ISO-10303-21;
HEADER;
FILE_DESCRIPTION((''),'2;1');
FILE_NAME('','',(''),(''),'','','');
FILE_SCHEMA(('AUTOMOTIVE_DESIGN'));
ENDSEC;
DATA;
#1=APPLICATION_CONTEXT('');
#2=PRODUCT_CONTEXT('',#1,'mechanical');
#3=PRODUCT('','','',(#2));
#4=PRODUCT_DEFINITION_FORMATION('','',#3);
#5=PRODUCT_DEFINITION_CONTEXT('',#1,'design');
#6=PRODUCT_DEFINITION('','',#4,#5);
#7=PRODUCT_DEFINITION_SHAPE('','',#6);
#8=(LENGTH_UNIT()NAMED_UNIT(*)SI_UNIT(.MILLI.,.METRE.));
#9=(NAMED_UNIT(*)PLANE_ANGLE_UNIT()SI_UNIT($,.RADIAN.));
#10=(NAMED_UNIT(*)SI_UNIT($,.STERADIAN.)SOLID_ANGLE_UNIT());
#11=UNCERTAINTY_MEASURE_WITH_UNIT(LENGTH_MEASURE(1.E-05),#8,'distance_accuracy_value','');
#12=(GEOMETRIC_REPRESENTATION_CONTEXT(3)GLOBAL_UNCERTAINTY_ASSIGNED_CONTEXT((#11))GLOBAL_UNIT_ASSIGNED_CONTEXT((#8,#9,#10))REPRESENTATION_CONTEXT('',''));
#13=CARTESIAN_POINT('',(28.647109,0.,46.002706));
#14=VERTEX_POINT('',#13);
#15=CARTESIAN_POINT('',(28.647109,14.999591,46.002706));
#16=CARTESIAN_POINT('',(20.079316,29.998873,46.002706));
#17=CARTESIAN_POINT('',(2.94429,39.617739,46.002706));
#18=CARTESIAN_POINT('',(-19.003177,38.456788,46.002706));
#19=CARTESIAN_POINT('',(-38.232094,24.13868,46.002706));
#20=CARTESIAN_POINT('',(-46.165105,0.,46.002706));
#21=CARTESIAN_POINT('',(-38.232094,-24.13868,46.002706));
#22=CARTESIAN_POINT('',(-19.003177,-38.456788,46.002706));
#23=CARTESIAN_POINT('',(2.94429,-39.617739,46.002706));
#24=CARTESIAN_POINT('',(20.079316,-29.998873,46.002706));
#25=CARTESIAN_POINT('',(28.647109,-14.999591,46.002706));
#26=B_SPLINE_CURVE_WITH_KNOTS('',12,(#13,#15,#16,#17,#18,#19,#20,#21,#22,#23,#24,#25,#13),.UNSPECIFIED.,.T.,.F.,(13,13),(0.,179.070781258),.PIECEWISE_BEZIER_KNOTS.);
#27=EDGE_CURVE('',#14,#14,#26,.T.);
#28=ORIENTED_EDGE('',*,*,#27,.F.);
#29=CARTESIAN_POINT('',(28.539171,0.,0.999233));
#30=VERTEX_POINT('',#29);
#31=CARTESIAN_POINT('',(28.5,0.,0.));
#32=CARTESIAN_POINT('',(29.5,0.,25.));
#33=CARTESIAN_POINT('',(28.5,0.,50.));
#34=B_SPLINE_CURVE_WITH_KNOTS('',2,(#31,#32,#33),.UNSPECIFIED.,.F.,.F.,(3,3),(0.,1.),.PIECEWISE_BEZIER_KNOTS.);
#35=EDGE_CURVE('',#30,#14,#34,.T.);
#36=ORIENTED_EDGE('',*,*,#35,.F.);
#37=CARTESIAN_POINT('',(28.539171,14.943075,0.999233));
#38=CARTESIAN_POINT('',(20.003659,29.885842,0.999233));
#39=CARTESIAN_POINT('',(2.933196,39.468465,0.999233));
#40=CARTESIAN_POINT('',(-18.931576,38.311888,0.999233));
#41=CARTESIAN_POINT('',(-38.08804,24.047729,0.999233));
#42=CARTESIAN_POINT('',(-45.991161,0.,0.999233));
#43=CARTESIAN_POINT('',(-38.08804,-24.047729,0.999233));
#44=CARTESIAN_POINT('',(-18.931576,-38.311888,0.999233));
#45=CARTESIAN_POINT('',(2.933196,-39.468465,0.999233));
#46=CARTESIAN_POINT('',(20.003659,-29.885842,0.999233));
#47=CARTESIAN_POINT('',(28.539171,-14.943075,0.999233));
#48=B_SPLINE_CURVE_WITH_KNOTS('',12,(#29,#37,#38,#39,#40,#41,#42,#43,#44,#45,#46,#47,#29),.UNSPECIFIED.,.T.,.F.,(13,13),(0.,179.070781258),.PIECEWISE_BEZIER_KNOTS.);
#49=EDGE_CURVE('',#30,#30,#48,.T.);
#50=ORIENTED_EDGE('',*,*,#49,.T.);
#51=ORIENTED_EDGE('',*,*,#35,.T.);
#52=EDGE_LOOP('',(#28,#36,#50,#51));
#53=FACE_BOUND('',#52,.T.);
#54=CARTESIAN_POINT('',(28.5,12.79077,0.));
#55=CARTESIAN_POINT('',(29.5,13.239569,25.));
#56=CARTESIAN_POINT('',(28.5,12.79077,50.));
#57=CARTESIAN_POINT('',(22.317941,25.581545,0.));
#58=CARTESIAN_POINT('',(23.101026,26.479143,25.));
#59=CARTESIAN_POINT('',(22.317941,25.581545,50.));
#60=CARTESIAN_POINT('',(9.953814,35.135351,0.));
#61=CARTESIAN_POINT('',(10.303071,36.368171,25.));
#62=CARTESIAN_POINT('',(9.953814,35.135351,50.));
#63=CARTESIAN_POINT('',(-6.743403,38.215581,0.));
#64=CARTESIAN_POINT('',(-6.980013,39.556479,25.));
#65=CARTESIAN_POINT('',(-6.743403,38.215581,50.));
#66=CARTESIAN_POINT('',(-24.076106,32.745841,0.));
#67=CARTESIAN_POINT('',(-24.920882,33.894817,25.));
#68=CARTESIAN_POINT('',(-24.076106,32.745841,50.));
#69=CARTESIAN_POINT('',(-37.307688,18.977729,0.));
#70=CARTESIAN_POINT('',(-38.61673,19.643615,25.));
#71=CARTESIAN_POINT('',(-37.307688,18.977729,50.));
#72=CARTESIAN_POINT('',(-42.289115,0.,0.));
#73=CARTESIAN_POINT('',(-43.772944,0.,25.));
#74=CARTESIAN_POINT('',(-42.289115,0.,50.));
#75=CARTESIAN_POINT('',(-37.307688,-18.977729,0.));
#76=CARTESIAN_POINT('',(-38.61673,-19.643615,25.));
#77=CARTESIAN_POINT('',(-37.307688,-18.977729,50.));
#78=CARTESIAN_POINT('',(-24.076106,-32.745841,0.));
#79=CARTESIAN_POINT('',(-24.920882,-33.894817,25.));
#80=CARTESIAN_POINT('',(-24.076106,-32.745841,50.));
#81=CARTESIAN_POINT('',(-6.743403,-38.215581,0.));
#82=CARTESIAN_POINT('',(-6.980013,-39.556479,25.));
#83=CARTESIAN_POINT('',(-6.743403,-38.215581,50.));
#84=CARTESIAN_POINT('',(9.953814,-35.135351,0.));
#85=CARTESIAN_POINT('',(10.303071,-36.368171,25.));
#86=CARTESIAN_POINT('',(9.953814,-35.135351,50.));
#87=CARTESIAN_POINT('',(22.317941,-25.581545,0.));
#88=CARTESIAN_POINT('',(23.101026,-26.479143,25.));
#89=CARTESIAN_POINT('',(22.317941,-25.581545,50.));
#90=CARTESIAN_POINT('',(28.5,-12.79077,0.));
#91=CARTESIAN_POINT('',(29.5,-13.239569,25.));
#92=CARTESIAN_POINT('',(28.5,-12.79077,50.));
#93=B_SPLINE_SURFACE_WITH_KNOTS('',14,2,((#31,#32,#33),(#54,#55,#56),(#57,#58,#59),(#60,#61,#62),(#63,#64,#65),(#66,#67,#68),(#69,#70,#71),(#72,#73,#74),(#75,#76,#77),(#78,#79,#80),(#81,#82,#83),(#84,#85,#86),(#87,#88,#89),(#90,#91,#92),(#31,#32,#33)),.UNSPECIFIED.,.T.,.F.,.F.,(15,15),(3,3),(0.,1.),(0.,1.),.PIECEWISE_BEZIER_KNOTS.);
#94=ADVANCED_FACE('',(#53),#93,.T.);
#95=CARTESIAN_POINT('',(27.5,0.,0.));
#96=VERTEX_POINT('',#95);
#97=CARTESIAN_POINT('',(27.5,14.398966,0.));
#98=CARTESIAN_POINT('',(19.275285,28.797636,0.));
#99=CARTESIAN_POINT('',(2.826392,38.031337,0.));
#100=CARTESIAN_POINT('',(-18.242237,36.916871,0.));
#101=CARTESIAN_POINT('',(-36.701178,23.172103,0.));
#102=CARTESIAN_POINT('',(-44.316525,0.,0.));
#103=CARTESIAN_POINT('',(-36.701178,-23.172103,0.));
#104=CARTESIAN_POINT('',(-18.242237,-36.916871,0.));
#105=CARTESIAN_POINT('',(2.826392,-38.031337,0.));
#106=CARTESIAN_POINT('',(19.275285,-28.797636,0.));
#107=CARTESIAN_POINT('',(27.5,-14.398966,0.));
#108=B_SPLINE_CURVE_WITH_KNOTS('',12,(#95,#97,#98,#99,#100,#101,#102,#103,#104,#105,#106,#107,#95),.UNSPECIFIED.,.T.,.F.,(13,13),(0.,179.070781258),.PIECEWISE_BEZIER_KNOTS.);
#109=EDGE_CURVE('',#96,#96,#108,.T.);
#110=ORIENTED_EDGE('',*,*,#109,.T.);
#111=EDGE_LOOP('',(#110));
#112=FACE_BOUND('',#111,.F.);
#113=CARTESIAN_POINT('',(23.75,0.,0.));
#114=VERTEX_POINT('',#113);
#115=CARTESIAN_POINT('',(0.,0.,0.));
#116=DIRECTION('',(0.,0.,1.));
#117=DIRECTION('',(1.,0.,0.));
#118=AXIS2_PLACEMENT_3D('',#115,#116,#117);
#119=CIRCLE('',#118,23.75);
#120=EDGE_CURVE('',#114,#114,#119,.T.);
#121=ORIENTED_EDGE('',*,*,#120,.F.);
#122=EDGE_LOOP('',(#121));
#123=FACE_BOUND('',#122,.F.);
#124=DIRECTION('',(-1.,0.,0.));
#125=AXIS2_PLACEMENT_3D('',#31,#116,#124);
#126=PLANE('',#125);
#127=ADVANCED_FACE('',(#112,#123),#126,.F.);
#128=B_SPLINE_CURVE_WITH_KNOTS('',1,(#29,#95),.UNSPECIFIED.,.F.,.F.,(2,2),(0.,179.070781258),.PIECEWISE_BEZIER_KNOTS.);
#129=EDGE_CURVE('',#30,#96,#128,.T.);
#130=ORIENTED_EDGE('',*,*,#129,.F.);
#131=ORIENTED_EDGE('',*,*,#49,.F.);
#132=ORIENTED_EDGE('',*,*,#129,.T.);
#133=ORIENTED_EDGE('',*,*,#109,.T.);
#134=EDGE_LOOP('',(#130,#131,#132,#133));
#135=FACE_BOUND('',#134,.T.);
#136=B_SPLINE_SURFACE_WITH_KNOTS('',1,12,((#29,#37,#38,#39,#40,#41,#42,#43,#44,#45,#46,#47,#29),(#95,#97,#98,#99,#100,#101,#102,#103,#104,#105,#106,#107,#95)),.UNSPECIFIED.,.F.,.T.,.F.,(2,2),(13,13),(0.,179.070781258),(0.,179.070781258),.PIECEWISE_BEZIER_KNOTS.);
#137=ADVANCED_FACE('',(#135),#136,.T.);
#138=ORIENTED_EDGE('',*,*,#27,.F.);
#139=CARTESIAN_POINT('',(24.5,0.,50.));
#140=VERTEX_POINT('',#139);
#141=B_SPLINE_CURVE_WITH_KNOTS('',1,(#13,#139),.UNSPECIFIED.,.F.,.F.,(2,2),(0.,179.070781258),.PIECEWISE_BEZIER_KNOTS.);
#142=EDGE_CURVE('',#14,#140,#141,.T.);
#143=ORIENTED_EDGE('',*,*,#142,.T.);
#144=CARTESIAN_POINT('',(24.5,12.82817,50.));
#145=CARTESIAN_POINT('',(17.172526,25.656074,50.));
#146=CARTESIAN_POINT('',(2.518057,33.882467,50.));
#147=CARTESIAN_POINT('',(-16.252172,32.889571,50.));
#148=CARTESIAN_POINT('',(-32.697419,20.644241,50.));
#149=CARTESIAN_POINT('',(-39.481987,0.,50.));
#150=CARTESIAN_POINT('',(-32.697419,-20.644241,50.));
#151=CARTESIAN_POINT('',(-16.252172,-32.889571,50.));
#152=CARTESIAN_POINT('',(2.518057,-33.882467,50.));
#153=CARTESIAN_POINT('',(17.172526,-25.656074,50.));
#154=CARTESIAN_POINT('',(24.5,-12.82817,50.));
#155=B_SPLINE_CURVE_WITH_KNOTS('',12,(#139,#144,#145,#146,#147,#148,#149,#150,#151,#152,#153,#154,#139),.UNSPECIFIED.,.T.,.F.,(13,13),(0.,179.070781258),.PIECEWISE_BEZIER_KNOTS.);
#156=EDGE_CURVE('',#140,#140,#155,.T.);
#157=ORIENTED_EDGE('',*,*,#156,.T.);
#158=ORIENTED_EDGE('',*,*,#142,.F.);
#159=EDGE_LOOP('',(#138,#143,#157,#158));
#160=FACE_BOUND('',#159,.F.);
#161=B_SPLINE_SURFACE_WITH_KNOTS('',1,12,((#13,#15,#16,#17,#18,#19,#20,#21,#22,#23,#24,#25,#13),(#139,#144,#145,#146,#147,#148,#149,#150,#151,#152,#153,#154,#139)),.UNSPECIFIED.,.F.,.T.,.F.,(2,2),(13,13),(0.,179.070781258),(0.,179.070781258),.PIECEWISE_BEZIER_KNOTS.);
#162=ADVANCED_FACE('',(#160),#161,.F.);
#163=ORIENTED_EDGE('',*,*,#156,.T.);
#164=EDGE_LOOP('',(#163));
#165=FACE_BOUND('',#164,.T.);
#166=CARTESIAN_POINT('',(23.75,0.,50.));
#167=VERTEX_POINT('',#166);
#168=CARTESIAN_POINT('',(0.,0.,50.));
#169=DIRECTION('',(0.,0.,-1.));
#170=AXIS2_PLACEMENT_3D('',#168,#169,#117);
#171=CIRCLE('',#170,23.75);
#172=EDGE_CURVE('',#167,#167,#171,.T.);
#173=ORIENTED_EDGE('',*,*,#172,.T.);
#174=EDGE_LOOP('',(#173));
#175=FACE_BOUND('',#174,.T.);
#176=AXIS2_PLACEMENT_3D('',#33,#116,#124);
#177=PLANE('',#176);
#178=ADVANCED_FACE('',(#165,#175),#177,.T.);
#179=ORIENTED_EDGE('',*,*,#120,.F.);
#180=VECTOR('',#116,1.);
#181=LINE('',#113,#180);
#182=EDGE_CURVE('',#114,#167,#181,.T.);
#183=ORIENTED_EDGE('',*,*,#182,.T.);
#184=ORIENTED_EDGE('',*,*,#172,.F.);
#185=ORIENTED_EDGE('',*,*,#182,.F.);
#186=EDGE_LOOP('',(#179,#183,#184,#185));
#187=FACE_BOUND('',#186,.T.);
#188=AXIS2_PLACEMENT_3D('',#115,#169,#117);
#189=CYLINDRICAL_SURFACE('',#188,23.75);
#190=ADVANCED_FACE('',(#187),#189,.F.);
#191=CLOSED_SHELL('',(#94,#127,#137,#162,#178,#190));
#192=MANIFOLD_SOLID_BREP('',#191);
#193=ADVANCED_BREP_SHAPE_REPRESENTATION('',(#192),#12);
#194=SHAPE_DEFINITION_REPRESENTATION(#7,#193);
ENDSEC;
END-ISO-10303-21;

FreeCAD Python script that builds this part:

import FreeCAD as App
import Part
import Sketcher

V = App.Vector


def edges_at(feature, points):
    """Names of the edges that pass closest to the given points."""
    edges = feature.Shape.Edges
    near = lambda p: min(range(len(edges)), key=lambda i: edges[i].distToShape(Part.Vertex(*p))[0])
    return sorted({f"Edge{near(p) + 1}" for p in points})

doc = App.newDocument("Part")
body = doc.addObject("PartDesign::Body", "Body")

# Sketch on XY plane
sketch1 = doc.addObject("Sketcher::SketchObject", "Sketch")
body.addObject(sketch1)
sketch1.AttachmentSupport = (doc.XY_Plane, [""])
sketch1.MapMode = "FlatFace"
sketch1.addGeometry(Part.Circle(V(0, 0, 0), V(0, 0, 1), 28.5), False)
sketch1.addConstraint([
    Sketcher.Constraint("Coincident", 0, 3, -1, 1),
    Sketcher.Constraint("Diameter", 0, 57.0),
])

# Sketch on XY plane
sketch2 = doc.addObject("Sketcher::SketchObject", "Sketch001")
body.addObject(sketch2)
sketch2.AttachmentSupport = (doc.XY_Plane, [""])
sketch2.MapMode = "FlatFace"
sketch2.AttachmentOffset = App.Placement(V(0, 0, 25), App.Rotation())
sketch2.addGeometry(Part.Circle(V(0, 0, 0), V(0, 0, 1), 29), False)
sketch2.addConstraint([
    Sketcher.Constraint("Coincident", 0, 3, -1, 1),
    Sketcher.Constraint("Diameter", 0, 58.0),
])

# Sketch on XY plane
sketch3 = doc.addObject("Sketcher::SketchObject", "Sketch002")
body.addObject(sketch3)
sketch3.AttachmentSupport = (doc.XY_Plane, [""])
sketch3.MapMode = "FlatFace"
sketch3.AttachmentOffset = App.Placement(V(0, 0, 50), App.Rotation())
sketch3.addGeometry(Part.Circle(V(0, 0, 0), V(0, 0, 1), 28.5), False)
sketch3.addConstraint([
    Sketcher.Constraint("Coincident", 0, 3, -1, 1),
    Sketcher.Constraint("Diameter", 0, 57.0),
])

additiveloft = doc.addObject("PartDesign::AdditiveLoft", "AdditiveLoft")
body.addObject(additiveloft)
additiveloft.Profile = sketch1
additiveloft.Sections = [sketch2, sketch3]

# Sketch on XY plane
sketch4 = doc.addObject("Sketcher::SketchObject", "Sketch003")
body.addObject(sketch4)
sketch4.AttachmentSupport = (doc.XY_Plane, [""])
sketch4.MapMode = "FlatFace"
sketch4.addGeometry(Part.Circle(V(0, 0, 0), V(0, 0, 1), 23.75), False)
sketch4.addConstraint([
    Sketcher.Constraint("Coincident", 0, 3, -1, 1),
    Sketcher.Constraint("Diameter", 0, 47.5),
])
pocket1 = doc.addObject("PartDesign::Pocket", "Pocket")
body.addObject(pocket1)
pocket1.Profile = sketch4
pocket1.Type = "ThroughAll"
pocket1.Reversed = True
doc.recompute()

chamfer = doc.addObject("PartDesign::Chamfer", "Chamfer")
body.addObject(chamfer)
chamfer.Base = (pocket1, edges_at(pocket1, [(-28.5, 0, 50)]))
chamfer.Size = 4
doc.recompute()

chamfer2 = doc.addObject("PartDesign::Chamfer", "Chamfer001")
body.addObject(chamfer2)
chamfer2.Base = (chamfer, edges_at(chamfer, [(-28.5, 0, 0)]))
chamfer2.Size = 1

doc.recompute()
